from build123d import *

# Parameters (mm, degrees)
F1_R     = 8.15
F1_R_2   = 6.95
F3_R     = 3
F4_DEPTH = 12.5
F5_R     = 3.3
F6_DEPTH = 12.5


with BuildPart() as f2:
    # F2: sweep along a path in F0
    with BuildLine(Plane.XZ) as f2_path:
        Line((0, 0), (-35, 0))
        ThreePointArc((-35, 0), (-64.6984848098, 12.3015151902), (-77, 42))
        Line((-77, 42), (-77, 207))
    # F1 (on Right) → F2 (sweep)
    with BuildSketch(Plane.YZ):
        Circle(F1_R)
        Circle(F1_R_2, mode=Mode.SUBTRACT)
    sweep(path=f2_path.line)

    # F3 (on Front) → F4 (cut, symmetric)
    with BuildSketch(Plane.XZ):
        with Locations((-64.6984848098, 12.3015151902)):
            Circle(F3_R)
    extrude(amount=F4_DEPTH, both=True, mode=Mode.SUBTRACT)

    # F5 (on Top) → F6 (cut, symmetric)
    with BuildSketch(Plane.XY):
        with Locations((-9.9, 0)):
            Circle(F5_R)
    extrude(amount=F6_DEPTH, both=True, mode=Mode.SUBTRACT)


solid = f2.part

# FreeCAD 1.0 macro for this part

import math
import FreeCAD as App
import Part
import Sketcher
from FreeCAD import Vector

doc = App.newDocument("Part")
body = doc.addObject("PartDesign::Body", "Body")

# Sketch on YZ plane
sketch1 = body.newObject("Sketcher::SketchObject", "Sketch")
sketch1.AttachmentSupport = (doc.getObject("YZ_Plane"), [""])
sketch1.MapMode = "FlatFace"
sketch1.addGeometry([
    Part.Circle(Vector(0, 0, 0), Vector(0, 0, 1), 8),
    Part.Circle(Vector(0, 0, 0), Vector(0, 0, 1), 7),
], False)
sketch1.addConstraint([
    Sketcher.Constraint("Coincident", 0, 3, -1, 1),
    Sketcher.Constraint("Coincident", 1, 3, -1, 1),
    Sketcher.Constraint("Diameter", 0, 16.3),
    Sketcher.Constraint("Diameter", 1, 13.9),
])

# Sketch on XZ plane
sketch2 = body.newObject("Sketcher::SketchObject", "Sketch001")
sketch2.AttachmentSupport = (doc.getObject("XZ_Plane"), [""])
sketch2.MapMode = "FlatFace"
sketch2.addGeometry([
    Part.LineSegment(Vector(0, 0, 0), Vector(-35, 0, 0)),
    Part.ArcOfCircle(Part.Circle(Vector(-35, 42, 0), Vector(0, 0, 1), 42), math.radians(180), math.radians(270)),
    Part.LineSegment(Vector(-77, 42, 0), Vector(-77, 207, 0)),
], False)
sketch2.addConstraint([
    Sketcher.Constraint("Tangent", 0, 2, 1, 2),
    Sketcher.Constraint("Tangent", 1, 1, 2, 1),
    Sketcher.Constraint("Horizontal", 0),
    Sketcher.Constraint("Vertical", 2),
    Sketcher.Constraint("Coincident", 0, 1, -1, 1),
    Sketcher.Constraint("Radius", 1, 42.0),
    Sketcher.Constraint("DistanceX", 0, 2, 0, 1, 35.0),
    Sketcher.Constraint("DistanceY", 2, 1, 2, 2, 165.0),
])
doc.recompute()

additivepipe = body.newObject("PartDesign::AdditivePipe", "AdditivePipe")
additivepipe.Profile = sketch1
additivepipe.Spine = (sketch2, ["Edge1", "Edge2", "Edge3"])

# Sketch on XZ plane
sketch3 = body.newObject("Sketcher::SketchObject", "Sketch002")
sketch3.AttachmentSupport = (doc.getObject("XZ_Plane"), [""])
sketch3.MapMode = "FlatFace"
sketch3.addGeometry(Part.Circle(Vector(-64.7, 12.3, 0), Vector(0, 0, 1), 3), False)
sketch3.addConstraint([
    Sketcher.Constraint("Diameter", 0, 6.0),
    Sketcher.Constraint("DistanceX", 0, 3, -1, 1, 64.698485),
    Sketcher.Constraint("DistanceY", -1, 1, 0, 3, 12.301515),
])
pocket1 = body.newObject("PartDesign::Pocket", "Pocket")
pocket1.Profile = sketch3
pocket1.Length = 25
pocket1.Midplane = True

# Sketch on XY plane
sketch4 = body.newObject("Sketcher::SketchObject", "Sketch003")
sketch4.AttachmentSupport = (doc.getObject("XY_Plane"), [""])
sketch4.MapMode = "FlatFace"
sketch4.addGeometry(Part.Circle(Vector(-9.9, 0, 0), Vector(0, 0, 1), 3.3), False)
sketch4.addConstraint([
    Sketcher.Constraint("PointOnObject", 0, 3, -1),
    Sketcher.Constraint("Diameter", 0, 6.6),
    Sketcher.Constraint("DistanceX", 0, 3, -1, 1, 9.9),
])
pocket2 = body.newObject("PartDesign::Pocket", "Pocket001")
pocket2.Profile = sketch4
pocket2.Length = 25
pocket2.Midplane = True

doc.recompute()
